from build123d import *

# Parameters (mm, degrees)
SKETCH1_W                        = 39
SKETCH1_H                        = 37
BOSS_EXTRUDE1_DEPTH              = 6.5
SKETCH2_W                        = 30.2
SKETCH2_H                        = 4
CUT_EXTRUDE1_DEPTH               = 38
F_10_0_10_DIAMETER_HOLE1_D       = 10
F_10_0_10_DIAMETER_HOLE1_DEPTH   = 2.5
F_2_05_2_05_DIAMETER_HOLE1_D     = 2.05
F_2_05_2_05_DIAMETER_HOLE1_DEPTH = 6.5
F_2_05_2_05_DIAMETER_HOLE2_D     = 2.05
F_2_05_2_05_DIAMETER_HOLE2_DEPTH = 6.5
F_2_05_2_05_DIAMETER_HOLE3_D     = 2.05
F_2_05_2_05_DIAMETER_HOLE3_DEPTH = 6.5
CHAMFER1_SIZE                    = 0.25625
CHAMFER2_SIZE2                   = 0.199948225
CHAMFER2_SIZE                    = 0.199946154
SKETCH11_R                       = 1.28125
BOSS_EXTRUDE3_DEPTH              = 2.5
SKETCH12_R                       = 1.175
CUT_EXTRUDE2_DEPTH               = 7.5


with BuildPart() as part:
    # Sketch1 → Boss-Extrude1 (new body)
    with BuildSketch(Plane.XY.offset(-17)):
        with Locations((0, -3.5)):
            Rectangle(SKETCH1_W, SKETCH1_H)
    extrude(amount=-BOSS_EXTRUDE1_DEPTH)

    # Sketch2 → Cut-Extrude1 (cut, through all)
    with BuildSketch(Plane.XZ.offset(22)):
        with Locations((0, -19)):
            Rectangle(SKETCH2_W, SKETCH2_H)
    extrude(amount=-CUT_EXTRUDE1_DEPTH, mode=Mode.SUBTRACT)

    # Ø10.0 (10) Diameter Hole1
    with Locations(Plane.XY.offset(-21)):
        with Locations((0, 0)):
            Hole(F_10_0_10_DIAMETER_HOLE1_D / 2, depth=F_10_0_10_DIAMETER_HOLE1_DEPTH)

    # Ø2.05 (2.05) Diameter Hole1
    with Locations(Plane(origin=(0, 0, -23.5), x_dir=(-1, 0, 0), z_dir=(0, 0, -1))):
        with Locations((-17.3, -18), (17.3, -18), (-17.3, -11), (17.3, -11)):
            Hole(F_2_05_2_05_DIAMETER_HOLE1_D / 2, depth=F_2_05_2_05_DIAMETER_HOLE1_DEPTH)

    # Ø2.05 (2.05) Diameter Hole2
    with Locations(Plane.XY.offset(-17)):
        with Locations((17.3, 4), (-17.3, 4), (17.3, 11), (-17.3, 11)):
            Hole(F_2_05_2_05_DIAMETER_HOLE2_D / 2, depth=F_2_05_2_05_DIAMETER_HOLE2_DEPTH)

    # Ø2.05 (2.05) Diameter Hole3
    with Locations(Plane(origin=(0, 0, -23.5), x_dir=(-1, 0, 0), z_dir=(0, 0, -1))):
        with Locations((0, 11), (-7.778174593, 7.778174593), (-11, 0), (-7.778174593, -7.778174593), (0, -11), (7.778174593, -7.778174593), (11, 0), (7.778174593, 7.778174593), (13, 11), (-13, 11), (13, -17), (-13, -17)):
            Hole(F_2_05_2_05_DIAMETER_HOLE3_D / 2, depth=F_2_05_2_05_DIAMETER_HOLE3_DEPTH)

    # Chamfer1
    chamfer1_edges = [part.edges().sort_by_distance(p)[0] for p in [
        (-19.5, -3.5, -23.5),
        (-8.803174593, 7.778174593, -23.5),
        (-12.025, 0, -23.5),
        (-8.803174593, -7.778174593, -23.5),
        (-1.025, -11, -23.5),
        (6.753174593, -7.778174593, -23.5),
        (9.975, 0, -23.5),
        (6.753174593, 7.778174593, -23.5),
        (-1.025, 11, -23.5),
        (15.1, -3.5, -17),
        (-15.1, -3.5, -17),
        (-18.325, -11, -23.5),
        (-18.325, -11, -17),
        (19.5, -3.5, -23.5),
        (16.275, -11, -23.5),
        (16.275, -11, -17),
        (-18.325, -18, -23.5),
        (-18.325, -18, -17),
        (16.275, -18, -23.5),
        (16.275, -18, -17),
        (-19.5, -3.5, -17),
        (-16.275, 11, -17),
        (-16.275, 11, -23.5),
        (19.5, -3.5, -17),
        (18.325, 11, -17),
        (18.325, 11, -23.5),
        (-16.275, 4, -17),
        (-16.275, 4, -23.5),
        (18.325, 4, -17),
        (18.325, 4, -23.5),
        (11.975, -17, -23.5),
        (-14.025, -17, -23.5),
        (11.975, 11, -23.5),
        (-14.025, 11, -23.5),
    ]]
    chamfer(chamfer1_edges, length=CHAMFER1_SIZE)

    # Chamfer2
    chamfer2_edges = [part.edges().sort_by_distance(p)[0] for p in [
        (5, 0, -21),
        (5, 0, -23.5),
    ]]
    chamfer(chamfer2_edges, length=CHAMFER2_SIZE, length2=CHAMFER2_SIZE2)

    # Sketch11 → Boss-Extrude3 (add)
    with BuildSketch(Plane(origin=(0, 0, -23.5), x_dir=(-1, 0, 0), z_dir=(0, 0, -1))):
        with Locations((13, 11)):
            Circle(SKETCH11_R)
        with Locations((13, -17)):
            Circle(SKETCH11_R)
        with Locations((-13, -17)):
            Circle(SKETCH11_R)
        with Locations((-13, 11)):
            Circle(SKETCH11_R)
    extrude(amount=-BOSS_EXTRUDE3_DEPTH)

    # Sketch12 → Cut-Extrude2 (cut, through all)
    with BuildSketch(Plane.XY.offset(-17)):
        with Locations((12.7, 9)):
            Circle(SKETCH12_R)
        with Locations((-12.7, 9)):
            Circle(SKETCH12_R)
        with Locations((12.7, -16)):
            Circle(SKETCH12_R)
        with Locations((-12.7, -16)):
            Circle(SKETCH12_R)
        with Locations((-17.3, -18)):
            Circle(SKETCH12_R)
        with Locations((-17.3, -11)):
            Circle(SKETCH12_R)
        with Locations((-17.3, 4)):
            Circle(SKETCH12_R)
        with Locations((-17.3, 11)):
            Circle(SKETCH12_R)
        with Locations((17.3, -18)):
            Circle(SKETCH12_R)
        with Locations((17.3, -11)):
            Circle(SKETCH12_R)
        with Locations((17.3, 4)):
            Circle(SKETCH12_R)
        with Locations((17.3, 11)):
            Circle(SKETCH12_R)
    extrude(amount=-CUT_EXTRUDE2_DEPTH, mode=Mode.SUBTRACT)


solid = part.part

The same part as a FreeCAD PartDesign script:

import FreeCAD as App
import Part
import Sketcher

V = App.Vector
Q = App.Units.Quantity


def edges_at(feature, points):
    """Names of the edges that pass closest to the given points."""
    edges = feature.Shape.Edges
    near = lambda p: min(range(len(edges)), key=lambda i: edges[i].distToShape(Part.Vertex(*p))[0])
    return sorted({f"Edge{near(p) + 1}" for p in points})


def add_polygon(sketch, points):
    """Adds a closed chain of lines whose ends are joined by coincident constraints."""
    first, n = sketch.GeometryCount, len(points)
    for a, b in zip(points, points[1:] + points[:1]):
        sketch.addGeometry(Part.LineSegment(App.Vector(*a, 0), App.Vector(*b, 0)), False)
    for i in range(n):
        sketch.addConstraint(Sketcher.Constraint("Coincident", first + i, 2, first + (i + 1) % n, 1))

doc = App.newDocument("Part")
body = doc.addObject("PartDesign::Body", "Body")

sketch1 = body.newObject("Sketcher::SketchObject", "Sketch")
sketch1.AttachmentSupport = (doc.getObject("XY_Plane"), [""])
sketch1.MapMode = "FlatFace"
sketch1.AttachmentOffset = App.Placement(V(0, 0, -17), App.Rotation())
add_polygon(sketch1, [(-20, 15), (-20, -22), (20, -22), (20, 15)])
sketch1.addConstraint(Sketcher.Constraint("Vertical", 0))
sketch1.addConstraint(Sketcher.Constraint("Horizontal", 1))
sketch1.addConstraint(Sketcher.Constraint("Vertical", 2))
sketch1.addConstraint(Sketcher.Constraint("Horizontal", 3))
sketch1.addConstraint(Sketcher.Constraint("DistanceX", 1, 1, 1, 2, Q("39 mm")))
sketch1.addConstraint(Sketcher.Constraint("DistanceY", 0, 2, 0, 1, Q("37 mm")))
sketch1.addConstraint(Sketcher.Constraint("DistanceY", 0, 2, -1, 1, Q("22 mm")))
sketch1.addConstraint(Sketcher.Constraint("DistanceX", 0, 2, -1, 1, Q("19.5 mm")))
pad1 = body.newObject("PartDesign::Pad", "Pad")
pad1.Profile = sketch1
pad1.Length = 6.5
pad1.Reversed = True

sketch2 = body.newObject("Sketcher::SketchObject", "Sketch001")
sketch2.AttachmentSupport = (doc.getObject("XZ_Plane"), [""])
sketch2.MapMode = "FlatFace"
sketch2.AttachmentOffset = App.Placement(V(0, 0, 22), App.Rotation())
add_polygon(sketch2, [(-15.1, -17), (-15.1, -21), (15.1, -21), (15.1, -17)])
sketch2.addConstraint(Sketcher.Constraint("Vertical", 0))
sketch2.addConstraint(Sketcher.Constraint("Horizontal", 1))
sketch2.addConstraint(Sketcher.Constraint("Vertical", 2))
sketch2.addConstraint(Sketcher.Constraint("Horizontal", 3))
sketch2.addConstraint(Sketcher.Constraint("DistanceY", 0, 2, 0, 1, Q("4 mm")))
sketch2.addConstraint(Sketcher.Constraint("DistanceX", 1, 1, 1, 2, Q("30.2 mm")))
sketch2.addConstraint(Sketcher.Constraint("DistanceY", 0, 2, -1, 1, Q("21 mm")))
sketch2.addConstraint(Sketcher.Constraint("DistanceX", 0, 2, -1, 1, Q("15.1 mm")))
pocket1 = body.newObject("PartDesign::Pocket", "Pocket")
pocket1.Profile = sketch2
pocket1.Type = "ThroughAll"

sketch3 = body.newObject("Sketcher::SketchObject", "Sketch002")
sketch3.AttachmentSupport = (doc.getObject("XY_Plane"), [""])
sketch3.MapMode = "FlatFace"
sketch3.AttachmentOffset = App.Placement(V(0, 0, -21), App.Rotation())
sketch3.addGeometry(Part.Circle(V(0, 0, 0), V(0, 0, 1), 5), False)
sketch3.addConstraint(Sketcher.Constraint("Coincident", 0, 3, -1, 1))
sketch3.addConstraint(Sketcher.Constraint("Diameter", 0, Q("10 mm")))
doc.recompute()
hole = body.newObject("PartDesign::Hole", "Hole")
hole.Profile = sketch3
hole.ThreadType = "None"
hole.Diameter = 10
hole.DepthType = "Dimension"
hole.Depth = 2.5
hole.DrillPoint = "Flat"

sketch4 = body.newObject("Sketcher::SketchObject", "Sketch003")
sketch4.AttachmentSupport = (doc.getObject("XY_Plane"), [""])
sketch4.MapMode = "FlatFace"
sketch4.AttachmentOffset = App.Placement(V(0, 0, -23.5), App.Rotation())
sketch4.addGeometry(Part.Circle(V(17.3, -18, 0), V(0, 0, 1), 1), False)
sketch4.addGeometry(Part.Circle(V(-17.3, -18, 0), V(0, 0, 1), 1), False)
sketch4.addGeometry(Part.Circle(V(17.3, -11, 0), V(0, 0, 1), 1), False)
sketch4.addGeometry(Part.Circle(V(-17.3, -11, 0), V(0, 0, 1), 1), False)
sketch4.addConstraint(Sketcher.Constraint("Equal", 0, 1))
sketch4.addConstraint(Sketcher.Constraint("Equal", 1, 2))
sketch4.addConstraint(Sketcher.Constraint("Equal", 2, 3))
sketch4.addConstraint(Sketcher.Constraint("Symmetric", 0, 3, 1, 3, -2))
sketch4.addConstraint(Sketcher.Constraint("Symmetric", 2, 3, 3, 3, -2))
sketch4.addConstraint(Sketcher.Constraint("Vertical", 0, 3, 2, 3))
sketch4.addConstraint(Sketcher.Constraint("Diameter", 0, Q("2.05 mm")))
sketch4.addConstraint(Sketcher.Constraint("DistanceY", 0, 3, -1, 1, Q("18 mm")))
sketch4.addConstraint(Sketcher.Constraint("DistanceY", 2, 3, -1, 1, Q("11 mm")))
sketch4.addConstraint(Sketcher.Constraint("DistanceX", -1, 1, 0, 3, Q("17.3 mm")))
doc.recompute()
hole2 = body.newObject("PartDesign::Hole", "Hole001")
hole2.Profile = sketch4
hole2.ThreadType = "None"
hole2.Diameter = 2.05
hole2.DepthType = "Dimension"
hole2.Depth = 6.5
hole2.DrillPoint = "Flat"
hole2.Reversed = True

sketch5 = body.newObject("Sketcher::SketchObject", "Sketch004")
sketch5.AttachmentSupport = (doc.getObject("XY_Plane"), [""])
sketch5.MapMode = "FlatFace"
sketch5.AttachmentOffset = App.Placement(V(0, 0, -17), App.Rotation())
sketch5.addGeometry(Part.Circle(V(17.3, 4, 0), V(0, 0, 1), 1), False)
sketch5.addGeometry(Part.Circle(V(-17.3, 4, 0), V(0, 0, 1), 1), False)
sketch5.addGeometry(Part.Circle(V(17.3, 11, 0), V(0, 0, 1), 1), False)
sketch5.addGeometry(Part.Circle(V(-17.3, 11, 0), V(0, 0, 1), 1), False)
sketch5.addConstraint(Sketcher.Constraint("Equal", 0, 1))
sketch5.addConstraint(Sketcher.Constraint("Equal", 1, 2))
sketch5.addConstraint(Sketcher.Constraint("Equal", 2, 3))
sketch5.addConstraint(Sketcher.Constraint("Symmetric", 0, 3, 1, 3, -2))
sketch5.addConstraint(Sketcher.Constraint("Symmetric", 2, 3, 3, 3, -2))
sketch5.addConstraint(Sketcher.Constraint("Vertical", 0, 3, 2, 3))
sketch5.addConstraint(Sketcher.Constraint("Diameter", 0, Q("2.05 mm")))
sketch5.addConstraint(Sketcher.Constraint("DistanceY", -1, 1, 0, 3, Q("4 mm")))
sketch5.addConstraint(Sketcher.Constraint("DistanceY", -1, 1, 2, 3, Q("11 mm")))
sketch5.addConstraint(Sketcher.Constraint("DistanceX", -1, 1, 0, 3, Q("17.3 mm")))
doc.recompute()
hole3 = body.newObject("PartDesign::Hole", "Hole002")
hole3.Profile = sketch5
hole3.ThreadType = "None"
hole3.Diameter = 2.05
hole3.DepthType = "Dimension"
hole3.Depth = 6.5
hole3.DrillPoint = "Flat"

sketch6 = body.newObject("Sketcher::SketchObject", "Sketch005")
sketch6.AttachmentSupport = (doc.getObject("XY_Plane"), [""])
sketch6.MapMode = "FlatFace"
sketch6.AttachmentOffset = App.Placement(V(0, 0, -23.5), App.Rotation())
sketch6.addGeometry(Part.Circle(V(0, 11, 0), V(0, 0, 1), 1), False)
sketch6.addGeometry(Part.Circle(V(7.8, 7.8, 0), V(0, 0, 1), 1), False)
sketch6.addGeometry(Part.Circle(V(11, 0, 0), V(0, 0, 1), 1), False)
sketch6.addGeometry(Part.Circle(V(7.8, -7.8, 0), V(0, 0, 1), 1), False)
sketch6.addGeometry(Part.Circle(V(0, -11, 0), V(0, 0, 1), 1), False)
sketch6.addGeometry(Part.Circle(V(-7.8, -7.8, 0), V(0, 0, 1), 1), False)
sketch6.addGeometry(Part.Circle(V(-11, 0, 0), V(0, 0, 1), 1), False)
sketch6.addGeometry(Part.Circle(V(-7.8, 7.8, 0), V(0, 0, 1), 1), False)
sketch6.addGeometry(Part.Circle(V(-13, 11, 0), V(0, 0, 1), 1), False)
sketch6.addGeometry(Part.Circle(V(13, 11, 0), V(0, 0, 1), 1), False)
sketch6.addGeometry(Part.Circle(V(-13, -17, 0), V(0, 0, 1), 1), False)
sketch6.addGeometry(Part.Circle(V(13, -17, 0), V(0, 0, 1), 1), False)
sketch6.addConstraint(Sketcher.Constraint("Equal", 0, 1))
sketch6.addConstraint(Sketcher.Constraint("Equal", 1, 2))
sketch6.addConstraint(Sketcher.Constraint("Equal", 2, 3))
sketch6.addConstraint(Sketcher.Constraint("Equal", 3, 4))
sketch6.addConstraint(Sketcher.Constraint("Equal", 4, 5))
sketch6.addConstraint(Sketcher.Constraint("Equal", 5, 6))
sketch6.addConstraint(Sketcher.Constraint("Equal", 6, 7))
sketch6.addConstraint(Sketcher.Constraint("Equal", 7, 8))
sketch6.addConstraint(Sketcher.Constraint("Equal", 8, 9))
sketch6.addConstraint(Sketcher.Constraint("Equal", 9, 10))
sketch6.addConstraint(Sketcher.Constraint("Equal", 10, 11))
sketch6.addConstraint(Sketcher.Constraint("Symmetric", 0, 3, 4, 3, -1, 1))
sketch6.addConstraint(Sketcher.Constraint("Symmetric", 1, 3, 5, 3, -1, 1))
sketch6.addConstraint(Sketcher.Constraint("Symmetric", 2, 3, 6, 3, -1, 1))
sketch6.addConstraint(Sketcher.Constraint("Symmetric", 3, 3, 7, 3, -1, 1))
sketch6.addConstraint(Sketcher.Constraint("Symmetric", 3, 3, 5, 3, -2))
sketch6.addConstraint(Sketcher.Constraint("Symmetric", 8, 3, 9, 3, -2))
sketch6.addConstraint(Sketcher.Constraint("Symmetric", 10, 3, 11, 3, -2))
sketch6.addConstraint(Sketcher.Constraint("PointOnObject", 0, 3, -2))
sketch6.addConstraint(Sketcher.Constraint("PointOnObject", 2, 3, -1))
sketch6.addConstraint(Sketcher.Constraint("Horizontal", 0, 3, 8, 3))
sketch6.addConstraint(Sketcher.Constraint("Vertical", 8, 3, 10, 3))
sketch6.addConstraint(Sketcher.Constraint("Diameter", 0, Q("2.05 mm")))
sketch6.addConstraint(Sketcher.Constraint("DistanceY", -1, 1, 0, 3, Q("11 mm")))
sketch6.addConstraint(Sketcher.Constraint("DistanceX", -1, 1, 2, 3, Q("11 mm")))
sketch6.addConstraint(Sketcher.Constraint("DistanceX", 8, 3, -1, 1, Q("13 mm")))
sketch6.addConstraint(Sketcher.Constraint("DistanceY", 10, 3, -1, 1, Q("17 mm")))
sketch6.addConstraint(Sketcher.Constraint("DistanceY", 3, 3, 1, 3, Q("15.556349 mm")))
sketch6.addConstraint(Sketcher.Constraint("DistanceX", 5, 3, 3, 3, Q("15.556349 mm")))
doc.recompute()
hole4 = body.newObject("PartDesign::Hole", "Hole003")
hole4.Profile = sketch6
hole4.ThreadType = "None"
hole4.Diameter = 2.05
hole4.DepthType = "Dimension"
hole4.Depth = 6.5
hole4.DrillPoint = "Flat"
hole4.Reversed = True
doc.recompute()

chamfer = body.newObject("PartDesign::Chamfer", "Chamfer")
chamfer.Base = (hole4, edges_at(hole4, [
    (-19.5, -3.5, -23.5),
    (-8.803, 7.778, -23.5),
    (-12.025, 0, -23.5),
    (-8.803, -7.778, -23.5),
    (-1.025, -11, -23.5),
    (6.753, -7.778, -23.5),
    (9.975, 0, -23.5),
    (6.753, 7.778, -23.5),
    (-1.025, 11, -23.5),
    (15.1, -3.5, -17),
    (-15.1, -3.5, -17),
    (-18.325, -11, -23.5),
    (-18.325, -11, -17),
    (19.5, -3.5, -23.5),
    (16.275, -11, -23.5),
    (16.275, -11, -17),
    (-18.325, -18, -23.5),
    (-18.325, -18, -17),
    (16.275, -18, -23.5),
    (16.275, -18, -17),
    (-19.5, -3.5, -17),
    (-16.275, 11, -17),
    (-16.275, 11, -23.5),
    (19.5, -3.5, -17),
    (18.325, 11, -17),
    (18.325, 11, -23.5),
    (-16.275, 4, -17),
    (-16.275, 4, -23.5),
    (18.325, 4, -17),
    (18.325, 4, -23.5),
    (11.975, -17, -23.5),
    (-14.025, -17, -23.5),
    (11.975, 11, -23.5),
    (-14.025, 11, -23.5),
]))
chamfer.Size = 0.25625
doc.recompute()

chamfer2 = body.newObject("PartDesign::Chamfer", "Chamfer001")
chamfer2.Base = (chamfer, edges_at(chamfer, [(5, 0, -21), (5, 0, -23.5)]))
chamfer2.ChamferType = "Two distances"
chamfer2.Size = 0.199946
chamfer2.Size2 = 0.199948

sketch7 = body.newObject("Sketcher::SketchObject", "Sketch006")
sketch7.AttachmentSupport = (doc.getObject("XY_Plane"), [""])
sketch7.MapMode = "FlatFace"
sketch7.AttachmentOffset = App.Placement(V(0, 0, -23.5), App.Rotation())
sketch7.addGeometry(Part.Circle(V(-13, 11, 0), V(0, 0, 1), 1.3), False)
sketch7.addGeometry(Part.Circle(V(-13, -17, 0), V(0, 0, 1), 1.3), False)
sketch7.addGeometry(Part.Circle(V(13, -17, 0), V(0, 0, 1), 1.3), False)
sketch7.addGeometry(Part.Circle(V(13, 11, 0), V(0, 0, 1), 1.3), False)
sketch7.addConstraint(Sketcher.Constraint("Equal", 0, 1))
sketch7.addConstraint(Sketcher.Constraint("Equal", 1, 2))
sketch7.addConstraint(Sketcher.Constraint("Equal", 2, 3))
sketch7.addConstraint(Sketcher.Constraint("Symmetric", 1, 3, 2, 3, -2))
sketch7.addConstraint(Sketcher.Constraint("Symmetric", 0, 3, 3, 3, -2))
sketch7.addConstraint(Sketcher.Constraint("Vertical", 0, 3, 1, 3))
sketch7.addConstraint(Sketcher.Constraint("DistanceX", 0, 3, -1, 1, Q("13 mm")))
sketch7.addConstraint(Sketcher.Constraint("DistanceY", -1, 1, 0, 3, Q("11 mm")))
sketch7.addConstraint(Sketcher.Constraint("DistanceY", 1, 3, -1, 1, Q("17 mm")))
sketch7.addConstraint(Sketcher.Constraint("Diameter", 0, Q("2.5625 mm")))
pad2 = body.newObject("PartDesign::Pad", "Pad001")
pad2.Profile = sketch7
pad2.Length = 2.5

sketch8 = body.newObject("Sketcher::SketchObject", "Sketch007")
sketch8.AttachmentSupport = (doc.getObject("XY_Plane"), [""])
sketch8.MapMode = "FlatFace"
sketch8.AttachmentOffset = App.Placement(V(0, 0, -17), App.Rotation())
sketch8.addGeometry(Part.Circle(V(12.7, 9, 0), V(0, 0, 1), 1.2), False)
sketch8.addGeometry(Part.Circle(V(-12.7, 9, 0), V(0, 0, 1), 1.2), False)
sketch8.addGeometry(Part.Circle(V(12.7, -16, 0), V(0, 0, 1), 1.2), False)
sketch8.addGeometry(Part.Circle(V(-12.7, -16, 0), V(0, 0, 1), 1.2), False)
sketch8.addGeometry(Part.Circle(V(-17.3, -18, 0), V(0, 0, 1), 1.2), False)
sketch8.addGeometry(Part.Circle(V(-17.3, -11, 0), V(0, 0, 1), 1.2), False)
sketch8.addGeometry(Part.Circle(V(-17.3, 4, 0), V(0, 0, 1), 1.2), False)
sketch8.addGeometry(Part.Circle(V(-17.3, 11, 0), V(0, 0, 1), 1.2), False)
sketch8.addGeometry(Part.Circle(V(17.3, -18, 0), V(0, 0, 1), 1.2), False)
sketch8.addGeometry(Part.Circle(V(17.3, -11, 0), V(0, 0, 1), 1.2), False)
sketch8.addGeometry(Part.Circle(V(17.3, 4, 0), V(0, 0, 1), 1.2), False)
sketch8.addGeometry(Part.Circle(V(17.3, 11, 0), V(0, 0, 1), 1.2), False)
sketch8.addConstraint(Sketcher.Constraint("Equal", 0, 1))
sketch8.addConstraint(Sketcher.Constraint("Equal", 1, 2))
sketch8.addConstraint(Sketcher.Constraint("Equal", 2, 3))
sketch8.addConstraint(Sketcher.Constraint("Equal", 3, 4))
sketch8.addConstraint(Sketcher.Constraint("Equal", 4, 5))
sketch8.addConstraint(Sketcher.Constraint("Equal", 5, 6))
sketch8.addConstraint(Sketcher.Constraint("Equal", 6, 7))
sketch8.addConstraint(Sketcher.Constraint("Equal", 7, 8))
sketch8.addConstraint(Sketcher.Constraint("Equal", 8, 9))
sketch8.addConstraint(Sketcher.Constraint("Equal", 9, 10))
sketch8.addConstraint(Sketcher.Constraint("Equal", 10, 11))
sketch8.addConstraint(Sketcher.Constraint("Symmetric", 7, 3, 9, 3, -1, 1))
sketch8.addConstraint(Sketcher.Constraint("Symmetric", 5, 3, 11, 3, -1, 1))
sketch8.addConstraint(Sketcher.Constraint("Symmetric", 0, 3, 1, 3, -2))
sketch8.addConstraint(Sketcher.Constraint("Symmetric", 2, 3, 3, 3, -2))
sketch8.addConstraint(Sketcher.Constraint("Symmetric", 4, 3, 8, 3, -2))
sketch8.addConstraint(Sketcher.Constraint("Symmetric", 5, 3, 9, 3, -2))
sketch8.addConstraint(Sketcher.Constraint("Symmetric", 6, 3, 10, 3, -2))
sketch8.addConstraint(Sketcher.Constraint("Vertical", 0, 3, 2, 3))
sketch8.addConstraint(Sketcher.Constraint("Vertical", 4, 3, 5, 3))
sketch8.addConstraint(Sketcher.Constraint("Vertical", 5, 3, 6, 3))
sketch8.addConstraint(Sketcher.Constraint("Diameter", 0, Q("2.35 mm")))
sketch8.addConstraint(Sketcher.Constraint("DistanceY", -1, 1, 0, 3, Q("9 mm")))
sketch8.addConstraint(Sketcher.Constraint("DistanceY", 2, 3, -1, 1, Q("16 mm")))
sketch8.addConstraint(Sketcher.Constraint("DistanceY", 4, 3, -1, 1, Q("18 mm")))
sketch8.addConstraint(Sketcher.Constraint("DistanceY", 5, 3, -1, 1, Q("11 mm")))
sketch8.addConstraint(Sketcher.Constraint("DistanceY", -1, 1, 6, 3, Q("4 mm")))
sketch8.addConstraint(Sketcher.Constraint("DistanceX", 4, 3, 2, 3, Q("30 mm")))
sketch8.addConstraint(Sketcher.Constraint("DistanceX", -1, 1, 0, 3, Q("12.7 mm")))
pocket2 = body.newObject("PartDesign::Pocket", "Pocket001")
pocket2.Profile = sketch8
pocket2.Type = "ThroughAll"

doc.recompute()
